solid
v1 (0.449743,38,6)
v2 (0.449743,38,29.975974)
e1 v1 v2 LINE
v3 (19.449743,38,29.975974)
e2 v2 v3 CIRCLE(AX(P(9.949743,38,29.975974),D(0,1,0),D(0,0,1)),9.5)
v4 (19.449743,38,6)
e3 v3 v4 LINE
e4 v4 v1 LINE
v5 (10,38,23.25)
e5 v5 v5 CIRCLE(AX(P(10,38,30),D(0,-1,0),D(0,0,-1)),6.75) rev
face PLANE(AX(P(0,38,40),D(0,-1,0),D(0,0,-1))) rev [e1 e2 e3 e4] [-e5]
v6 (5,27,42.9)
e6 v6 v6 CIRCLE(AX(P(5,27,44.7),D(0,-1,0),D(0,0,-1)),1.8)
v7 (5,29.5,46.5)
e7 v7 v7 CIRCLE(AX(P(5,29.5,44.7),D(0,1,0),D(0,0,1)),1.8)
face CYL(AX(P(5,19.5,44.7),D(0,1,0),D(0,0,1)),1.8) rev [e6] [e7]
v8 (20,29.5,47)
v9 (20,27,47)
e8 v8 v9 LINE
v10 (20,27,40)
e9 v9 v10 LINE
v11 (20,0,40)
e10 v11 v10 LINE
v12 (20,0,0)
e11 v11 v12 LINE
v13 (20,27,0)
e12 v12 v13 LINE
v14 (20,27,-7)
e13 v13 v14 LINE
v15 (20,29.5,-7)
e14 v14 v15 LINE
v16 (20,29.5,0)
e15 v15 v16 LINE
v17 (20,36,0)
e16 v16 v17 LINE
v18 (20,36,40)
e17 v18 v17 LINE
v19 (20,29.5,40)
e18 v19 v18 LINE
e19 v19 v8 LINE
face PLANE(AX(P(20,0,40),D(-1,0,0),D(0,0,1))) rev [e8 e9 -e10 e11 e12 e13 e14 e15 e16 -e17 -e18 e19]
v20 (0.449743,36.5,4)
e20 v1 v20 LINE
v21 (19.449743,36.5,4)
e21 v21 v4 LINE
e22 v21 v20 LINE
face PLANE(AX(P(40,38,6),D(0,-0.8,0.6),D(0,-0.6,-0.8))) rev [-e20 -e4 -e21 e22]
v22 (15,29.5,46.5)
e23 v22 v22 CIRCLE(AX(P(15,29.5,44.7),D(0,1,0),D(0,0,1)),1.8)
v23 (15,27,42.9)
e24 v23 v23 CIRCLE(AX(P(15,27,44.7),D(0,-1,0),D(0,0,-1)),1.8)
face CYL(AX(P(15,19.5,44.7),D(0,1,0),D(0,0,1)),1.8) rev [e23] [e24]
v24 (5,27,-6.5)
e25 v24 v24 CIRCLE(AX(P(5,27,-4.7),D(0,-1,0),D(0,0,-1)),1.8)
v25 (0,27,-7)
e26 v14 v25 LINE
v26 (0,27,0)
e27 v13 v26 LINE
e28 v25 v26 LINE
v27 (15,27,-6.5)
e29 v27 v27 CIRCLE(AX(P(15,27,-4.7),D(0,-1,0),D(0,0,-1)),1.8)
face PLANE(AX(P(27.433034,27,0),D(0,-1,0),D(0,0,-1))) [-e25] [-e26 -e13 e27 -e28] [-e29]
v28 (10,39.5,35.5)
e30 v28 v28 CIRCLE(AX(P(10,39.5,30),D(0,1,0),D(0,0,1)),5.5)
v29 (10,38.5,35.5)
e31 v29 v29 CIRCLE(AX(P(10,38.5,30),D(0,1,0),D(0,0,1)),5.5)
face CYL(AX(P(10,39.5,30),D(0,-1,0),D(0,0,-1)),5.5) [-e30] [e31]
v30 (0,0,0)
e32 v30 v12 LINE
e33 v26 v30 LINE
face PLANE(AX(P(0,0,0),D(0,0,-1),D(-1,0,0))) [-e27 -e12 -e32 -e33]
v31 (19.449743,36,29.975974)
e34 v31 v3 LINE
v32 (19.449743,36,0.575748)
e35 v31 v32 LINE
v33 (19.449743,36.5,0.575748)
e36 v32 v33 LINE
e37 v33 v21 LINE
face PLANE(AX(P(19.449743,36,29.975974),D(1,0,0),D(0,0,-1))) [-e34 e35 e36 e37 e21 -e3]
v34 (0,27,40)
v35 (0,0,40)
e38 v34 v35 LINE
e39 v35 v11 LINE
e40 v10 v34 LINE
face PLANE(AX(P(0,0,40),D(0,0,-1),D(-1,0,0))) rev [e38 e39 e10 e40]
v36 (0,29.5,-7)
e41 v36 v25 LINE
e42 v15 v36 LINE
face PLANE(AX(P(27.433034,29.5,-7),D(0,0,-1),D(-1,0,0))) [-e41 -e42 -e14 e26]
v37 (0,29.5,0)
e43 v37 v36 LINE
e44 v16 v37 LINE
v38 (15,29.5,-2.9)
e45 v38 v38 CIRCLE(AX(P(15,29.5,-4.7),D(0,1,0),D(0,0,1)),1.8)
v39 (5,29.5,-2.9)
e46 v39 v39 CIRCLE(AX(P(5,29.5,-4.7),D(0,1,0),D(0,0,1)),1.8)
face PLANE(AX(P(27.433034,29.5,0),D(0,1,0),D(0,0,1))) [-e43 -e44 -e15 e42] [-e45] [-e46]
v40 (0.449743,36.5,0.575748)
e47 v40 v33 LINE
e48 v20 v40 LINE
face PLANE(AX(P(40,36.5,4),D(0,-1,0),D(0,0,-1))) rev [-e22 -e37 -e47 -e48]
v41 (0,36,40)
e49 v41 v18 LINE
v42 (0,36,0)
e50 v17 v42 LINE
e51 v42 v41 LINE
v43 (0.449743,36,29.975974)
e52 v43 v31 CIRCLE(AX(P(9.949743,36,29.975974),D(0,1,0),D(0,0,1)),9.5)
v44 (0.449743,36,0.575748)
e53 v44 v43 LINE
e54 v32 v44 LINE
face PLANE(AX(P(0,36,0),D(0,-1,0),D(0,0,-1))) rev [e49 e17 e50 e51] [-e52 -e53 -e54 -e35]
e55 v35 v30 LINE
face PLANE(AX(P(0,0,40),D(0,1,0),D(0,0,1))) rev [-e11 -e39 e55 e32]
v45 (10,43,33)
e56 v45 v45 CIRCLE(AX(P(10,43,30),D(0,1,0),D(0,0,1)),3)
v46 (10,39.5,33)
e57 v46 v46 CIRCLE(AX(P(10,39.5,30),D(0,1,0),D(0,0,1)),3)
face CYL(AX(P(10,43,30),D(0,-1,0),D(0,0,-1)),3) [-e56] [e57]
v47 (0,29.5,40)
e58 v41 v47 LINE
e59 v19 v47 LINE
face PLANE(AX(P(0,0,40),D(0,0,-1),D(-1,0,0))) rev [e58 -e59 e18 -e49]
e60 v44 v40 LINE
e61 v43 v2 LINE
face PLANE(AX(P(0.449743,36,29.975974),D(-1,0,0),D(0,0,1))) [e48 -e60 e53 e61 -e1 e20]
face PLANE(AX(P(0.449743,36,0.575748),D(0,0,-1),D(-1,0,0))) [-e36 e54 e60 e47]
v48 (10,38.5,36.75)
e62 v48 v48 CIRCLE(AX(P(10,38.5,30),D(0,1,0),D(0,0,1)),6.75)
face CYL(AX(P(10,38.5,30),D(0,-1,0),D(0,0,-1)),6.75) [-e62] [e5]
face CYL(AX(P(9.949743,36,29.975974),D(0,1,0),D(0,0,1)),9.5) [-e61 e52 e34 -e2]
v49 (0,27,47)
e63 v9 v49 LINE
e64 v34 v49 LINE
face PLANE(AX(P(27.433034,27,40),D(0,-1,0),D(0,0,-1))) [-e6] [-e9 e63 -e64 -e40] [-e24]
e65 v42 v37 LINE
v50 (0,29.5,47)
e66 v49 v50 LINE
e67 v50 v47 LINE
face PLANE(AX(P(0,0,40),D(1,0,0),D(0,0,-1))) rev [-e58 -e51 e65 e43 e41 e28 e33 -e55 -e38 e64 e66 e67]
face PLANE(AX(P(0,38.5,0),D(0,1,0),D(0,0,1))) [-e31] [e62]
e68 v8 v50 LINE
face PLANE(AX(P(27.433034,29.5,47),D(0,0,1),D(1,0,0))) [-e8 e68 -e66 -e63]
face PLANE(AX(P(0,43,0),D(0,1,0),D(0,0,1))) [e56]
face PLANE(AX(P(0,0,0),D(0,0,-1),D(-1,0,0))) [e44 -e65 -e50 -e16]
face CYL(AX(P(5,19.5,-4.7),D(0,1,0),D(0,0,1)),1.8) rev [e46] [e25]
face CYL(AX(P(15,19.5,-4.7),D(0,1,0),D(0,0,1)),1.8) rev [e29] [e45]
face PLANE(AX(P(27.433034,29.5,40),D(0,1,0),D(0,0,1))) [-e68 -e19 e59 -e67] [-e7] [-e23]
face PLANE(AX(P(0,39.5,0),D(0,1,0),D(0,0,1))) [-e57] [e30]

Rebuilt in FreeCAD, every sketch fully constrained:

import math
import FreeCAD as App
import Part
import Sketcher
from FreeCAD import Vector

doc = App.newDocument("Part")
body = doc.addObject("PartDesign::Body", "Body")

# Sketch on XY plane
sketch1 = doc.addObject("Sketcher::SketchObject", "Sketch")
body.addObject(sketch1)
sketch1.AttachmentSupport = (doc.XY_Plane, [""])
sketch1.MapMode = "FlatFace"
sketch1.addGeometry([
    Part.LineSegment(Vector(0, 38, 0), Vector(0, 0, 0)),
    Part.LineSegment(Vector(0, 0, 0), Vector(20, 0, 0)),
    Part.LineSegment(Vector(20, 0, 0), Vector(20, 38, 0)),
    Part.LineSegment(Vector(20, 38, 0), Vector(0, 38, 0)),
], False)
sketch1.addConstraint([
    Sketcher.Constraint("Coincident", 0, 2, 1, 1),
    Sketcher.Constraint("Coincident", 1, 2, 2, 1),
    Sketcher.Constraint("Coincident", 2, 2, 3, 1),
    Sketcher.Constraint("Coincident", 3, 2, 0, 1),
    Sketcher.Constraint("Vertical", 0),
    Sketcher.Constraint("Horizontal", 1),
    Sketcher.Constraint("Vertical", 2),
    Sketcher.Constraint("Horizontal", 3),
    Sketcher.Constraint("Coincident", 0, 2, -1, 1),
    Sketcher.Constraint("DistanceX", 1, 1, 1, 2, 20.0),
    Sketcher.Constraint("DistanceY", 0, 2, 0, 1, 38.0),
])
pad1 = doc.addObject("PartDesign::Pad", "Pad")
body.addObject(pad1)
pad1.Profile = sketch1
pad1.Length = 40

# Sketch on YZ plane
sketch2 = doc.addObject("Sketcher::SketchObject", "Sketch001")
body.addObject(sketch2)
sketch2.AttachmentSupport = (doc.YZ_Plane, [""])
sketch2.MapMode = "FlatFace"
sketch2.addGeometry([
    Part.LineSegment(Vector(29.5, -7, 0), Vector(27, -7, 0)),  # 0
    Part.LineSegment(Vector(27, -7, 0), Vector(27, 0, 0)),  # 1
    Part.LineSegment(Vector(27, 0, 0), Vector(29.5, 0, 0)),  # 2
    Part.LineSegment(Vector(29.5, 0, 0), Vector(29.5, -7, 0)),  # 3
    Part.LineSegment(Vector(29.5, 40, 0), Vector(27, 40, 0)),  # 4
    Part.LineSegment(Vector(27, 40, 0), Vector(27, 47, 0)),  # 5
    Part.LineSegment(Vector(27, 47, 0), Vector(29.5, 47, 0)),  # 6
    Part.LineSegment(Vector(29.5, 47, 0), Vector(29.5, 40, 0)),  # 7
], False)
sketch2.addConstraint([
    Sketcher.Constraint("Coincident", 0, 2, 1, 1),
    Sketcher.Constraint("Coincident", 1, 2, 2, 1),
    Sketcher.Constraint("Coincident", 2, 2, 3, 1),
    Sketcher.Constraint("Coincident", 3, 2, 0, 1),
    Sketcher.Constraint("Coincident", 4, 2, 5, 1),
    Sketcher.Constraint("Coincident", 5, 2, 6, 1),
    Sketcher.Constraint("Coincident", 6, 2, 7, 1),
    Sketcher.Constraint("Coincident", 7, 2, 4, 1),
    Sketcher.Constraint("Horizontal", 0),
    Sketcher.Constraint("Vertical", 1),
    Sketcher.Constraint("Horizontal", 2),
    Sketcher.Constraint("Vertical", 3),
    Sketcher.Constraint("Horizontal", 4),
    Sketcher.Constraint("Vertical", 5),
    Sketcher.Constraint("Horizontal", 6),
    Sketcher.Constraint("Vertical", 7),
    Sketcher.Constraint("PointOnObject", 1, 2, -1),
    Sketcher.Constraint("Vertical", 1, 2, 4, 2),
    Sketcher.Constraint("Vertical", 3, 2, 6, 2),
    Sketcher.Constraint("Equal", 3, 5),
    Sketcher.Constraint("DistanceY", 1, 1, 1, 2, 7.0),
    Sketcher.Constraint("DistanceX", 0, 2, 0, 1, 2.5),
    Sketcher.Constraint("DistanceX", -1, 1, 0, 2, 27.0),
    Sketcher.Constraint("DistanceY", -1, 1, 4, 2, 40.0),
])
pad2 = doc.addObject("PartDesign::Pad", "Pad001")
body.addObject(pad2)
pad2.Profile = sketch2
pad2.Length = 20

# Sketch on YZ plane
sketch3 = doc.addObject("Sketcher::SketchObject", "Sketch002")
body.addObject(sketch3)
sketch3.AttachmentSupport = (doc.YZ_Plane, [""])
sketch3.MapMode = "FlatFace"
sketch3.addGeometry([
    Part.LineSegment(Vector(36.5, 4, 0), Vector(38, 6, 0)),
    Part.LineSegment(Vector(38, 6, 0), Vector(38, 0, 0)),
    Part.LineSegment(Vector(38, 0, 0), Vector(36.5, 0, 0)),
    Part.LineSegment(Vector(36.5, 0, 0), Vector(36.5, 4, 0)),
], False)
sketch3.addConstraint([
    Sketcher.Constraint("Coincident", 0, 2, 1, 1),
    Sketcher.Constraint("Coincident", 1, 2, 2, 1),
    Sketcher.Constraint("Coincident", 2, 2, 3, 1),
    Sketcher.Constraint("Coincident", 3, 2, 0, 1),
    Sketcher.Constraint("Vertical", 1),
    Sketcher.Constraint("Horizontal", 2),
    Sketcher.Constraint("Vertical", 3),
    Sketcher.Constraint("PointOnObject", 1, 2, -1),
    Sketcher.Constraint("DistanceY", 1, 2, 1, 1, 6.0),
    Sketcher.Constraint("DistanceY", 3, 1, 3, 2, 4.0),
    Sketcher.Constraint("DistanceX", 2, 2, 2, 1, 1.5),
    Sketcher.Constraint("DistanceX", -1, 1, 0, 2, 38.0),
])
pocket1 = doc.addObject("PartDesign::Pocket", "Pocket")
body.addObject(pocket1)
pocket1.Profile = sketch3
pocket1.Length = 40
pocket1.Reversed = True

# Sketch on XZ plane
sketch4 = doc.addObject("Sketcher::SketchObject", "Sketch003")
body.addObject(sketch4)
sketch4.AttachmentSupport = (doc.XZ_Plane, [""])
sketch4.MapMode = "FlatFace"
sketch4.AttachmentOffset = App.Placement(Vector(0, 0, -29.5), App.Rotation())
sketch4.addGeometry([
    Part.Circle(Vector(15, 44.7, 0), Vector(0, 0, 1), 1.8),
    Part.Circle(Vector(5, 44.7, 0), Vector(0, 0, 1), 1.8),
    Part.Circle(Vector(15, -4.7, 0), Vector(0, 0, 1), 1.8),
    Part.Circle(Vector(5, -4.7, 0), Vector(0, 0, 1), 1.8),
], False)
sketch4.addConstraint([
    Sketcher.Constraint("Equal", 0, 1),
    Sketcher.Constraint("Equal", 1, 2),
    Sketcher.Constraint("Equal", 2, 3),
    Sketcher.Constraint("Horizontal", 0, 3, 1, 3),
    Sketcher.Constraint("Horizontal", 2, 3, 3, 3),
    Sketcher.Constraint("Vertical", 0, 3, 2, 3),
    Sketcher.Constraint("Vertical", 1, 3, 3, 3),
    Sketcher.Constraint("Diameter", 0, 3.6),
    Sketcher.Constraint("DistanceX", -1, 1, 0, 3, 15.0),
    Sketcher.Constraint("DistanceX", -1, 1, 1, 3, 5.0),
    Sketcher.Constraint("DistanceY", -1, 1, 0, 3, 44.7),
    Sketcher.Constraint("DistanceY", 2, 3, -1, 1, 4.7),
])
pocket2 = doc.addObject("PartDesign::Pocket", "Pocket001")
body.addObject(pocket2)
pocket2.Profile = sketch4
pocket2.Length = 10
pocket2.Reversed = True

# Sketch on XZ plane
sketch5 = doc.addObject("Sketcher::SketchObject", "Sketch004")
body.addObject(sketch5)
sketch5.AttachmentSupport = (doc.XZ_Plane, [""])
sketch5.MapMode = "FlatFace"
sketch5.AttachmentOffset = App.Placement(Vector(0, 0, -38), App.Rotation())
sketch5.addGeometry([
    Part.LineSegment(Vector(0, 0, 0), Vector(0, 40, 0)),  # 0
    Part.LineSegment(Vector(0, 40, 0), Vector(20, 40, 0)),  # 1
    Part.LineSegment(Vector(20, 40, 0), Vector(20, 0, 0)),  # 2
    Part.LineSegment(Vector(20, 0, 0), Vector(0, 0, 0)),  # 3
    Part.LineSegment(Vector(19, 1, 0), Vector(19, 30, 0)),  # 4
    Part.ArcOfCircle(Part.Circle(Vector(10, 30, 0), Vector(0, 0, 1), 10), math.radians(0), math.radians(180)),  # 5
    Part.LineSegment(Vector(0, 30, 0), Vector(0, 1, 0)),  # 6
    Part.LineSegment(Vector(0, 1, 0), Vector(19, 1, 0)),  # 7
], False)
sketch5.addConstraint([
    Sketcher.Constraint("Coincident", 0, 2, 1, 1),
    Sketcher.Constraint("Coincident", 1, 2, 2, 1),
    Sketcher.Constraint("Coincident", 2, 2, 3, 1),
    Sketcher.Constraint("Coincident", 3, 2, 0, 1),
    Sketcher.Constraint("Tangent", 4, 2, 5, 1),
    Sketcher.Constraint("Tangent", 5, 2, 6, 1),
    Sketcher.Constraint("Coincident", 6, 2, 7, 1),
    Sketcher.Constraint("Coincident", 7, 2, 4, 1),
    Sketcher.Constraint("Vertical", 0),
    Sketcher.Constraint("Horizontal", 1),
    Sketcher.Constraint("Vertical", 2),
    Sketcher.Constraint("Horizontal", 3),
    Sketcher.Constraint("Vertical", 4),
    Sketcher.Constraint("Vertical", 6),
    Sketcher.Constraint("Horizontal", 7),
    Sketcher.Constraint("Coincident", 3, 2, -1, 1),
    Sketcher.Constraint("Radius", 5, 9.5),
    Sketcher.Constraint("DistanceX", 1, 1, 1, 2, 20.0),
    Sketcher.Constraint("DistanceY", 0, 1, 0, 2, 40.0),
    Sketcher.Constraint("DistanceY", 4, 1, 4, 2, 29.400226),
    Sketcher.Constraint("DistanceX", -1, 1, 5, 3, 9.949743),
    Sketcher.Constraint("DistanceY", -1, 1, 5, 3, 29.975974),
])
pocket3 = doc.addObject("PartDesign::Pocket", "Pocket002")
body.addObject(pocket3)
pocket3.Profile = sketch5
pocket3.Length = 2
pocket3.Reversed = True

# Sketch on XZ plane
sketch6 = doc.addObject("Sketcher::SketchObject", "Sketch005")
body.addObject(sketch6)
sketch6.AttachmentSupport = (doc.XZ_Plane, [""])
sketch6.MapMode = "FlatFace"
sketch6.AttachmentOffset = App.Placement(Vector(0, 0, -38), App.Rotation())
sketch6.addGeometry([
    Part.Circle(Vector(10, 30, 0), Vector(0, 0, 1), 7),
    Part.Circle(Vector(10, 30, 0), Vector(0, 0, 1), 6),
], False)
sketch6.addConstraint([
    Sketcher.Constraint("Coincident", 1, 3, 0, 3),
    Sketcher.Constraint("Diameter", 1, 11.0),
    Sketcher.Constraint("Diameter", 0, 13.5),
    Sketcher.Constraint("DistanceX", -1, 1, 0, 3, 10.0),
    Sketcher.Constraint("DistanceY", -1, 1, 0, 3, 30.0),
])
pad3 = doc.addObject("PartDesign::Pad", "Pad002")
body.addObject(pad3)
pad3.Profile = sketch6
pad3.Length = 0.5
pad3.Reversed = True

# Sketch on XZ plane
sketch7 = doc.addObject("Sketcher::SketchObject", "Sketch006")
body.addObject(sketch7)
sketch7.AttachmentSupport = (doc.XZ_Plane, [""])
sketch7.MapMode = "FlatFace"
sketch7.AttachmentOffset = App.Placement(Vector(0, 0, -38), App.Rotation())
sketch7.addGeometry([
    Part.Circle(Vector(10, 30, 0), Vector(0, 0, 1), 5.5),
    Part.Circle(Vector(10, 30, 0), Vector(0, 0, 1), 3),
], False)
sketch7.addConstraint([
    Sketcher.Constraint("Coincident", 1, 3, 0, 3),
    Sketcher.Constraint("Diameter", 0, 11.0),
    Sketcher.Constraint("Diameter", 1, 6.0),
    Sketcher.Constraint("DistanceX", -1, 1, 0, 3, 10.0),
    Sketcher.Constraint("DistanceY", -1, 1, 0, 3, 30.0),
])
pad4 = doc.addObject("PartDesign::Pad", "Pad003")
body.addObject(pad4)
pad4.Profile = sketch7
pad4.Length = 1.5
pad4.Reversed = True

# Sketch on XZ plane
sketch8 = doc.addObject("Sketcher::SketchObject", "Sketch007")
body.addObject(sketch8)
sketch8.AttachmentSupport = (doc.XZ_Plane, [""])
sketch8.MapMode = "FlatFace"
sketch8.AttachmentOffset = App.Placement(Vector(0, 0, -38), App.Rotation())
sketch8.addGeometry(Part.Circle(Vector(10, 30, 0), Vector(0, 0, 1), 3), False)
sketch8.addConstraint([
    Sketcher.Constraint("Diameter", 0, 6.0),
    Sketcher.Constraint("DistanceX", -1, 1, 0, 3, 10.0),
    Sketcher.Constraint("DistanceY", -1, 1, 0, 3, 30.0),
])
pad5 = doc.addObject("PartDesign::Pad", "Pad004")
body.addObject(pad5)
pad5.Profile = sketch8
pad5.Length = 5
pad5.Reversed = True

doc.recompute()
